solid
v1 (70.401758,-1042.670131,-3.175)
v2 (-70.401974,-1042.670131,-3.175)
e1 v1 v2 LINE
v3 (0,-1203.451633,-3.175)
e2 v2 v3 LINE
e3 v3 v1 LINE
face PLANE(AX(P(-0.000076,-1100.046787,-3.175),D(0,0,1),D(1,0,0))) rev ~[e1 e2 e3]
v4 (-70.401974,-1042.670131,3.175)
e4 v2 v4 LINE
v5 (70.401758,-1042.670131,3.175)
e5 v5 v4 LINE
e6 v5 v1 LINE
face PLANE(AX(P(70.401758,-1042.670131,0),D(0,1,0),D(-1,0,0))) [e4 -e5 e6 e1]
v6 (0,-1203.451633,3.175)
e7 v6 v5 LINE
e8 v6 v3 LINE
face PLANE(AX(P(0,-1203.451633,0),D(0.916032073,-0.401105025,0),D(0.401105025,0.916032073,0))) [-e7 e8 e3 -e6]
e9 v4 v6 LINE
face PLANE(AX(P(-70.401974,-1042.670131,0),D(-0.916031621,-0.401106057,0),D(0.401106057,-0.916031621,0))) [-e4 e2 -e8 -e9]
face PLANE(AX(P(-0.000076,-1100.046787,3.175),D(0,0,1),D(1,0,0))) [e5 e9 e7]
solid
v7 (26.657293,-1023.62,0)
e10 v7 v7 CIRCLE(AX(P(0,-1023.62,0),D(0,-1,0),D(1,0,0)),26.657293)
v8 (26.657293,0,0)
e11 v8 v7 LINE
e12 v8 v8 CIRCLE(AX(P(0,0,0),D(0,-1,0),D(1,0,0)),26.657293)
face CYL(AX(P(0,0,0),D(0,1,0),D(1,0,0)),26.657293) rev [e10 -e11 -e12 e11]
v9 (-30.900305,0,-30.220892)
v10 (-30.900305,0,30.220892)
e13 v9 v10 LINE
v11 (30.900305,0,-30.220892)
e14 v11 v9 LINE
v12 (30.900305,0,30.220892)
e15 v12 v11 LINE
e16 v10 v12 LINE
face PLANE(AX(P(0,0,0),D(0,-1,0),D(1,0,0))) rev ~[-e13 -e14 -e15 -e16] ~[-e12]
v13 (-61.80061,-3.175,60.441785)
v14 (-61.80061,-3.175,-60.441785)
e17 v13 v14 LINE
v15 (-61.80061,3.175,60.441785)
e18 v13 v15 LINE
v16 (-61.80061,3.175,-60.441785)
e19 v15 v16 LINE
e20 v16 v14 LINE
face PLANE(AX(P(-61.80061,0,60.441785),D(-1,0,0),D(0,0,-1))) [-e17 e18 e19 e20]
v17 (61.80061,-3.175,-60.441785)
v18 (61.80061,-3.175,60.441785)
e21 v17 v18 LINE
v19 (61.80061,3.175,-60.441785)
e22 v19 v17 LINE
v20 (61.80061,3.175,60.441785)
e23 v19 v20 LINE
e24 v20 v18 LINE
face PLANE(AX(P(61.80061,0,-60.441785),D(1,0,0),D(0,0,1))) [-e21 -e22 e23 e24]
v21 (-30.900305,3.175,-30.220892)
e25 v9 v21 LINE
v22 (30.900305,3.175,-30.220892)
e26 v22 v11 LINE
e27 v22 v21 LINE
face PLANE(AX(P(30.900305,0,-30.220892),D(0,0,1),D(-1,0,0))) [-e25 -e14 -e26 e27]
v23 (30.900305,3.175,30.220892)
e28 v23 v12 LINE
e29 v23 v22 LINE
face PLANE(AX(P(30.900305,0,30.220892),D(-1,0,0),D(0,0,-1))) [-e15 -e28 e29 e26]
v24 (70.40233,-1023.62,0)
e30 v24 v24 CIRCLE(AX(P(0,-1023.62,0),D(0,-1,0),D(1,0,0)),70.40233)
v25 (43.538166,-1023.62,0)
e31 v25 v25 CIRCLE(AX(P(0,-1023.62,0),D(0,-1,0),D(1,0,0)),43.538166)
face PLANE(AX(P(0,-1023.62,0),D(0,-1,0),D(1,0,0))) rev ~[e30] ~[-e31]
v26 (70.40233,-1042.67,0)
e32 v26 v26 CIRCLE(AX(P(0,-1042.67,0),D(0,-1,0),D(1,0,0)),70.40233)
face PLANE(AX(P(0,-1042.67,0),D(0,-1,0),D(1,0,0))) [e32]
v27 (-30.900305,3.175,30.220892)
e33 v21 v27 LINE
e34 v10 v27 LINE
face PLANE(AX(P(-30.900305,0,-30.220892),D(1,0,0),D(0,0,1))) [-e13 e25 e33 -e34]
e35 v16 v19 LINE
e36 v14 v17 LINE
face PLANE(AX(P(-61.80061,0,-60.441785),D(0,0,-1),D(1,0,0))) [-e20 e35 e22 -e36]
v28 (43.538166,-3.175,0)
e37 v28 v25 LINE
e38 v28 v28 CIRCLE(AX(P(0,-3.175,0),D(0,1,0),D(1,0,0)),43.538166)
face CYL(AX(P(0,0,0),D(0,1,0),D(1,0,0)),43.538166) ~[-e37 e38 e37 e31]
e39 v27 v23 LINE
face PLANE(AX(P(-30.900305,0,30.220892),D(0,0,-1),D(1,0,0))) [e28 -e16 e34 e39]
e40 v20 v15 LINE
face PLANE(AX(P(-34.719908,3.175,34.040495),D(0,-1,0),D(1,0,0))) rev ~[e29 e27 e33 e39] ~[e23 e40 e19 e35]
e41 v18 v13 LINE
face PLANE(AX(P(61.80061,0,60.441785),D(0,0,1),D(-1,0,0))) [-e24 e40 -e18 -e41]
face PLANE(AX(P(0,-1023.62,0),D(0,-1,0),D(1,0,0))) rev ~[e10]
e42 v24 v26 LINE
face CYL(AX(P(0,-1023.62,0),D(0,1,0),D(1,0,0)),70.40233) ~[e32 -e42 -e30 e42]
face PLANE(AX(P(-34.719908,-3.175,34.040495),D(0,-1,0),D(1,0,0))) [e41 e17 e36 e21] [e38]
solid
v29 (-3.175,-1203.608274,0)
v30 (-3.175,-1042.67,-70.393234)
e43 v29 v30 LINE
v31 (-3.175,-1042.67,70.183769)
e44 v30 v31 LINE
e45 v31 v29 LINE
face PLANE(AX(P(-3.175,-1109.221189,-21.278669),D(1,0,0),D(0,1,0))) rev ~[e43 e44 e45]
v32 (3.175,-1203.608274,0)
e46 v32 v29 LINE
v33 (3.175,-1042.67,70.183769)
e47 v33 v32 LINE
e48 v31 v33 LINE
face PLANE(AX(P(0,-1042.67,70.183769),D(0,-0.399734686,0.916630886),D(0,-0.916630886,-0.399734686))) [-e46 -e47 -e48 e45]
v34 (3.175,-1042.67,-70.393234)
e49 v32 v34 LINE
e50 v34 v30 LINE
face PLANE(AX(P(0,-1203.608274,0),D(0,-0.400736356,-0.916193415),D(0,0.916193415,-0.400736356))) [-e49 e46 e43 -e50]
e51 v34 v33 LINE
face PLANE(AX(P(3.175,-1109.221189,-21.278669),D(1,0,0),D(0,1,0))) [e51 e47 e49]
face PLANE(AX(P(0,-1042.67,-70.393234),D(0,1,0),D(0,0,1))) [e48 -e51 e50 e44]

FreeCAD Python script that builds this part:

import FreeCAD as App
import Part
import Sketcher
Q = App.Units.Quantity


def add_polygon(sketch, points):
    """Adds a closed chain of lines whose ends are joined by coincident constraints."""
    first, n = sketch.GeometryCount, len(points)
    for a, b in zip(points, points[1:] + points[:1]):
        sketch.addGeometry(Part.LineSegment(App.Vector(*a, 0), App.Vector(*b, 0)), False)
    for i in range(n):
        sketch.addConstraint(Sketcher.Constraint("Coincident", first + i, 2, first + (i + 1) % n, 1))

doc = App.newDocument("Part")
body = doc.addObject("PartDesign::Body", "Body")

# Sketch on XZ plane
sketch1 = body.newObject("Sketcher::SketchObject", "Sketch")
sketch1.AttachmentSupport = (doc.getObject("XZ_Plane"), [""])
sketch1.MapMode = "FlatFace"
sketch1.addGeometry(Part.Circle(App.Vector(0, 0, 0), App.Vector(0, 0, 1), 43.538166), False)
sketch1.addGeometry(Part.Circle(App.Vector(0, 0, 0), App.Vector(0, 0, 1), 26.657293), False)
sketch1.addConstraint(Sketcher.Constraint("Coincident", 0, 3, -1, 1))
sketch1.addConstraint(Sketcher.Constraint("Coincident", 1, 3, -1, 1))
sketch1.addConstraint(Sketcher.Constraint("Diameter", 0, Q("87.076332 mm")))
sketch1.addConstraint(Sketcher.Constraint("Diameter", 1, Q("53.314586 mm")))
pad1 = body.newObject("PartDesign::Pad", "Pad")
pad1.Profile = sketch1
pad1.Length = Q("40.3 in")

# Sketch on XZ plane
sketch2 = body.newObject("Sketcher::SketchObject", "Sketch001")
sketch2.AttachmentSupport = (doc.getObject("XZ_Plane"), [""])
sketch2.MapMode = "FlatFace"
sketch2.AttachmentOffset = App.Placement(App.Vector(0, 0, 40.3 * 25.4), App.Rotation())
sketch2.addGeometry(Part.Circle(App.Vector(0, 0, 0), App.Vector(0, 0, 1), 70.40233), False)
sketch2.addConstraint(Sketcher.Constraint("Coincident", 0, 3, -1, 1))
sketch2.addConstraint(Sketcher.Constraint("Diameter", 0, Q("140.80466 mm")))
pad2 = body.newObject("PartDesign::Pad", "Pad001")
pad2.Profile = sketch2
pad2.Length = Q("0.75 in")

# Sketch on XZ plane
sketch3 = body.newObject("Sketcher::SketchObject", "Sketch002")
sketch3.AttachmentSupport = (doc.getObject("XZ_Plane"), [""])
sketch3.MapMode = "FlatFace"
add_polygon(sketch3, [(-61.80061, 60.441785), (-61.80061, -60.441785), (61.80061, -60.441785), (61.80061, 60.441785)])  # lines 0-3
add_polygon(sketch3, [(-30.900305, 30.220892), (30.900305, 30.220892), (30.900305, -30.220892), (-30.900305, -30.220892)])  # lines 4-7
sketch3.addConstraint(Sketcher.Constraint("Vertical", 0))
sketch3.addConstraint(Sketcher.Constraint("Horizontal", 1))
sketch3.addConstraint(Sketcher.Constraint("Vertical", 2))
sketch3.addConstraint(Sketcher.Constraint("Horizontal", 3))
sketch3.addConstraint(Sketcher.Constraint("Horizontal", 4))
sketch3.addConstraint(Sketcher.Constraint("Vertical", 5))
sketch3.addConstraint(Sketcher.Constraint("Horizontal", 6))
sketch3.addConstraint(Sketcher.Constraint("Vertical", 7))
sketch3.addConstraint(Sketcher.Constraint("Symmetric", 0, 2, 2, 2, -1, 1))
sketch3.addConstraint(Sketcher.Constraint("Symmetric", 4, 2, 6, 2, -1, 1))
sketch3.addConstraint(Sketcher.Constraint("DistanceX", 1, 1, 1, 2, Q("123.60122 mm")))
sketch3.addConstraint(Sketcher.Constraint("DistanceX", 4, 1, 4, 2, Q("61.80061 mm")))
sketch3.addConstraint(Sketcher.Constraint("DistanceY", 0, 2, 0, 1, Q("120.88357 mm")))
sketch3.addConstraint(Sketcher.Constraint("DistanceY", 5, 2, 5, 1, Q("60.441784 mm")))
pad3 = body.newObject("PartDesign::Pad", "Pad002")
pad3.Profile = sketch3
pad3.Length = Q("0.25 in")
pad3.Midplane = True
body2 = doc.addObject("PartDesign::Body", "Body001")

# Sketch on XY plane
sketch4 = body2.newObject("Sketcher::SketchObject", "Sketch003")
sketch4.AttachmentSupport = (doc.getObject("XY_Plane001"), [""])
sketch4.MapMode = "FlatFace"
add_polygon(sketch4, [(70.401758, -1042.670131), (-70.401974, -1042.670131), (0, -1203.451633)])  # lines 0-2
sketch4.addConstraint(Sketcher.Constraint("Horizontal", 0))
sketch4.addConstraint(Sketcher.Constraint("PointOnObject", 1, 2, -2))
sketch4.addConstraint(Sketcher.Constraint("Distance", 1, Q("175.519598 mm")))
sketch4.addConstraint(Sketcher.Constraint("DistanceX", 0, 2, 0, 1, Q("140.803732 mm")))
sketch4.addConstraint(Sketcher.Constraint("DistanceY", 1, 2, 0, 2, Q("160.781502 mm")))
sketch4.addConstraint(Sketcher.Constraint("DistanceY", 0, 2, -1, 1, Q("1042.670131 mm")))
pad4 = body2.newObject("PartDesign::Pad", "Pad003")
pad4.Profile = sketch4
pad4.Length = Q("0.25 in")
pad4.Midplane = True
body3 = doc.addObject("PartDesign::Body", "Body002")

# Sketch on YZ plane
sketch5 = body3.newObject("Sketcher::SketchObject", "Sketch004")
sketch5.AttachmentSupport = (doc.getObject("YZ_Plane002"), [""])
sketch5.MapMode = "FlatFace"
add_polygon(sketch5, [(-1042.67, -70.393234), (-1042.67, 70.183769), (-1203.608274, 0)])  # lines 0-2
sketch5.addConstraint(Sketcher.Constraint("Vertical", 0))
sketch5.addConstraint(Sketcher.Constraint("PointOnObject", 1, 2, -1))
sketch5.addConstraint(Sketcher.Constraint("DistanceX", 0, 2, -1, 1, Q("41.05 in")))
sketch5.addConstraint(Sketcher.Constraint("Distance", 1, Q("175.57588 mm")))
sketch5.addConstraint(Sketcher.Constraint("DistanceY", 0, 1, 0, 2, Q("140.577003 mm")))
sketch5.addConstraint(Sketcher.Constraint("DistanceY", -1, 1, 0, 2, Q("70.183769 mm")))
pad5 = body3.newObject("PartDesign::Pad", "Pad004")
pad5.Profile = sketch5
pad5.Length = Q("0.25 in")
pad5.Midplane = True

doc.recompute()
